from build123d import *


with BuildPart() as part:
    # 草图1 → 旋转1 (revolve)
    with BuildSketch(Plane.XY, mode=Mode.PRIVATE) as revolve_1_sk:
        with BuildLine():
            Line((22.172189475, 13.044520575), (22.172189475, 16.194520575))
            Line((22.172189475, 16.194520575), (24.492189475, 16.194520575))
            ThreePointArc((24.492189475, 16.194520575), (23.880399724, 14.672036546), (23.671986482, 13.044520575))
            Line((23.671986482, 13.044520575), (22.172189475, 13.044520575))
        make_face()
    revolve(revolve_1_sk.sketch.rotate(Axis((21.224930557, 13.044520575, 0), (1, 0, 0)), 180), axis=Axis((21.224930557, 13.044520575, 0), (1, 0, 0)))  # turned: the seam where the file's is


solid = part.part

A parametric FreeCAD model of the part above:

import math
import FreeCAD as App
import Part
import Sketcher

doc = App.newDocument("Part")
params = doc.addObject("Spreadsheet::Sheet", "Params")
for row, (alias, value) in enumerate([
    ("sketch1_width", "2.32 mm"),
    ("sketch1_height", "3.15 mm"),
    ("revolution_angle", "360 deg"),
], start=1):
    params.set(f"A{row}", alias)
    params.set(f"B{row}", "=" + value)
    params.setAlias(f"B{row}", alias)

body = doc.addObject("PartDesign::Body", "Body")

sketch1 = body.newObject("Sketcher::SketchObject", "Sketch")
sketch1.AttachmentSupport = (doc.getObject("XY_Plane"), [""])
sketch1.MapMode = "FlatFace"
sketch1.addGeometry(Part.LineSegment(App.Vector(22.172189, 16.194521, 0), App.Vector(22.172189, 13.044521, 0)), False)
sketch1.addGeometry(Part.LineSegment(App.Vector(22.172189, 13.044521, 0), App.Vector(23.671986, 13.044521, 0)), False)
sketch1.addGeometry(Part.ArcOfCircle(Part.Circle(App.Vector(30.130895, 13.044521, 0), App.Vector(0, 0, 1), 6.458909), math.radians(150.81058), math.radians(180)), False)
sketch1.addGeometry(Part.LineSegment(App.Vector(24.492189, 16.194521, 0), App.Vector(22.172189, 16.194521, 0)), False)
sketch1.addGeometry(Part.LineSegment(App.Vector(22.172189, 13.044521, 0), App.Vector(30.130895, 13.044521, 0)), True)
sketch1.addConstraint(Sketcher.Constraint("Coincident", 0, 2, 1, 1))
sketch1.addConstraint(Sketcher.Constraint("Coincident", 1, 2, 2, 2))
sketch1.addConstraint(Sketcher.Constraint("Coincident", 2, 1, 3, 1))
sketch1.addConstraint(Sketcher.Constraint("Coincident", 3, 2, 0, 1))
sketch1.addConstraint(Sketcher.Constraint("Vertical", 0))
sketch1.addConstraint(Sketcher.Constraint("Horizontal", 1))
sketch1.addConstraint(Sketcher.Constraint("Horizontal", 3))
sketch1.addConstraint(Sketcher.Constraint("Horizontal", 4))
sketch1.addConstraint(Sketcher.Constraint("Coincident", 4, 1, 0, 2))
sketch1.addConstraint(Sketcher.Constraint("Coincident", 4, 2, 2, 3))
sketch1.addConstraint(Sketcher.Constraint("DistanceX", 3, 2, 3, 1, 2.32))
sketch1.addConstraint(Sketcher.Constraint("DistanceY", 0, 2, 0, 1, 3.15))
sketch1.addConstraint(Sketcher.Constraint("Radius", 2, 6.458909))
sketch1.addConstraint(Sketcher.Constraint("DistanceY", -1, 1, 2, 3, 13.044521))
sketch1.addConstraint(Sketcher.Constraint("DistanceX", -1, 1, 0, 2, 22.172189))
sketch1.setExpression("Constraints[10]", "Params.sketch1_width")
sketch1.setExpression("Constraints[11]", "Params.sketch1_height")
revolution = body.newObject("PartDesign::Revolution", "Revolution")
revolution.Profile = sketch1
revolution.ReferenceAxis = (sketch1, ["Axis0"])
revolution.setExpression("Angle", "Params.revolution_angle")

doc.recompute()
